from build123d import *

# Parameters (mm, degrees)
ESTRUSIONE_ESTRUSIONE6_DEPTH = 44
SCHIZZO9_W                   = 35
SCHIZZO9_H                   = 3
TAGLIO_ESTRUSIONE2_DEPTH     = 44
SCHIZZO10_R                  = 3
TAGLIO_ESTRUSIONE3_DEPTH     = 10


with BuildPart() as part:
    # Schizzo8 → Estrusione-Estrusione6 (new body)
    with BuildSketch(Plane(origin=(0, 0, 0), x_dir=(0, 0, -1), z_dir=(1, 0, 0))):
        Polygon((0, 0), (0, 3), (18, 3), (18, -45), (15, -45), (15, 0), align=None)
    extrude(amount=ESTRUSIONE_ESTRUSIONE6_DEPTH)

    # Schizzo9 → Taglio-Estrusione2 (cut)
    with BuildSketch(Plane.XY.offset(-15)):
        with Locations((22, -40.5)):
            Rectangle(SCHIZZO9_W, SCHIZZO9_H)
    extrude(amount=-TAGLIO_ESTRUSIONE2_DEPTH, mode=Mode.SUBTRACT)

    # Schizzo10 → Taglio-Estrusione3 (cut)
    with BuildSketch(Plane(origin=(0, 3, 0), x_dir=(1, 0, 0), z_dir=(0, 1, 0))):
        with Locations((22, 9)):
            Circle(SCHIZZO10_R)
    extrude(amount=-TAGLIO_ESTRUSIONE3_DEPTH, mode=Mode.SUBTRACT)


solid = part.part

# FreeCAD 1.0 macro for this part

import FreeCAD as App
import Part
import Sketcher
from FreeCAD import Vector

doc = App.newDocument("Part")
body = doc.addObject("PartDesign::Body", "Body")

# Sketch on YZ plane
sketch1 = doc.addObject("Sketcher::SketchObject", "Sketch")
body.addObject(sketch1)
sketch1.AttachmentSupport = (doc.YZ_Plane, [""])
sketch1.MapMode = "FlatFace"
sketch1.addGeometry(Part.LineSegment(Vector(3, 0, 0), Vector(0, 0, 0)), False)
sketch1.addGeometry(Part.LineSegment(Vector(0, 0, 0), Vector(0, -15, 0)), False)
sketch1.addGeometry(Part.LineSegment(Vector(0, -15, 0), Vector(-45, -15, 0)), False)
sketch1.addGeometry(Part.LineSegment(Vector(-45, -15, 0), Vector(-45, -18, 0)), False)
sketch1.addGeometry(Part.LineSegment(Vector(-45, -18, 0), Vector(3, -18, 0)), False)
sketch1.addGeometry(Part.LineSegment(Vector(3, -18, 0), Vector(3, 0, 0)), False)
sketch1.addConstraint(Sketcher.Constraint("Coincident", 0, 2, 1, 1))
sketch1.addConstraint(Sketcher.Constraint("Coincident", 1, 2, 2, 1))
sketch1.addConstraint(Sketcher.Constraint("Coincident", 2, 2, 3, 1))
sketch1.addConstraint(Sketcher.Constraint("Coincident", 3, 2, 4, 1))
sketch1.addConstraint(Sketcher.Constraint("Coincident", 4, 2, 5, 1))
sketch1.addConstraint(Sketcher.Constraint("Coincident", 5, 2, 0, 1))
sketch1.addConstraint(Sketcher.Constraint("Horizontal", 0))
sketch1.addConstraint(Sketcher.Constraint("Vertical", 1))
sketch1.addConstraint(Sketcher.Constraint("Horizontal", 2))
sketch1.addConstraint(Sketcher.Constraint("Vertical", 3))
sketch1.addConstraint(Sketcher.Constraint("Horizontal", 4))
sketch1.addConstraint(Sketcher.Constraint("Vertical", 5))
sketch1.addConstraint(Sketcher.Constraint("Coincident", 0, 2, -1, 1))
sketch1.addConstraint(Sketcher.Constraint("Equal", 0, 3))
sketch1.addConstraint(Sketcher.Constraint("DistanceX", 0, 2, 0, 1, 3.0))
sketch1.addConstraint(Sketcher.Constraint("DistanceX", 2, 2, 2, 1, 45.0))
sketch1.addConstraint(Sketcher.Constraint("DistanceY", 1, 2, 1, 1, 15.0))
pad1 = doc.addObject("PartDesign::Pad", "Pad")
body.addObject(pad1)
pad1.Profile = sketch1
pad1.Length = 44

# Sketch on XY plane
sketch2 = doc.addObject("Sketcher::SketchObject", "Sketch001")
body.addObject(sketch2)
sketch2.AttachmentSupport = (doc.XY_Plane, [""])
sketch2.MapMode = "FlatFace"
sketch2.AttachmentOffset = App.Placement(Vector(0, 0, -15), App.Rotation())
sketch2.addGeometry(Part.LineSegment(Vector(4.5, -39, 0), Vector(4.5, -42, 0)), False)
sketch2.addGeometry(Part.LineSegment(Vector(4.5, -42, 0), Vector(39.5, -42, 0)), False)
sketch2.addGeometry(Part.LineSegment(Vector(39.5, -42, 0), Vector(39.5, -39, 0)), False)
sketch2.addGeometry(Part.LineSegment(Vector(39.5, -39, 0), Vector(4.5, -39, 0)), False)
sketch2.addConstraint(Sketcher.Constraint("Coincident", 0, 2, 1, 1))
sketch2.addConstraint(Sketcher.Constraint("Coincident", 1, 2, 2, 1))
sketch2.addConstraint(Sketcher.Constraint("Coincident", 2, 2, 3, 1))
sketch2.addConstraint(Sketcher.Constraint("Coincident", 3, 2, 0, 1))
sketch2.addConstraint(Sketcher.Constraint("Vertical", 0))
sketch2.addConstraint(Sketcher.Constraint("Horizontal", 1))
sketch2.addConstraint(Sketcher.Constraint("Vertical", 2))
sketch2.addConstraint(Sketcher.Constraint("Horizontal", 3))
sketch2.addConstraint(Sketcher.Constraint("DistanceX", 1, 1, 1, 2, 35.0))
sketch2.addConstraint(Sketcher.Constraint("DistanceY", 0, 2, 0, 1, 3.0))
sketch2.addConstraint(Sketcher.Constraint("DistanceY", 0, 2, -1, 1, 42.0))
sketch2.addConstraint(Sketcher.Constraint("DistanceX", -1, 1, 0, 2, 4.5))
pocket1 = doc.addObject("PartDesign::Pocket", "Pocket")
body.addObject(pocket1)
pocket1.Profile = sketch2
pocket1.Length = 44

# Sketch on XZ plane
sketch3 = doc.addObject("Sketcher::SketchObject", "Sketch002")
body.addObject(sketch3)
sketch3.AttachmentSupport = (doc.XZ_Plane, [""])
sketch3.MapMode = "FlatFace"
sketch3.AttachmentOffset = App.Placement(Vector(0, 0, -3), App.Rotation())
sketch3.addGeometry(Part.Circle(Vector(22, -9, 0), Vector(0, 0, 1), 3), False)
sketch3.addConstraint(Sketcher.Constraint("Diameter", 0, 6.0))
sketch3.addConstraint(Sketcher.Constraint("DistanceX", -1, 1, 0, 3, 22.0))
sketch3.addConstraint(Sketcher.Constraint("DistanceY", 0, 3, -1, 1, 9.0))
pocket2 = doc.addObject("PartDesign::Pocket", "Pocket001")
body.addObject(pocket2)
pocket2.Profile = sketch3
pocket2.Length = 10
pocket2.Reversed = True

doc.recompute()
